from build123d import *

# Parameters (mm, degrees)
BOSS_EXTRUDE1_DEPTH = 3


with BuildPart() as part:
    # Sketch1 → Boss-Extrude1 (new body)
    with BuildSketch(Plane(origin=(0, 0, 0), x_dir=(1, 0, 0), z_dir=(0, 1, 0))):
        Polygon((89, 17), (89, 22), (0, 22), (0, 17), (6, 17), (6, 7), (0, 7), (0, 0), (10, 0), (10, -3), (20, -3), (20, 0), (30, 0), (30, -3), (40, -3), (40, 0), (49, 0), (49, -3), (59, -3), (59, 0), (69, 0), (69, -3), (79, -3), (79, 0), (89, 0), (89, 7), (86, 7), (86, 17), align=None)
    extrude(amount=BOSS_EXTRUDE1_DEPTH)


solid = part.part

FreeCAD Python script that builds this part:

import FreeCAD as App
import Part
import Sketcher

V = App.Vector


def add_polygon(sketch, points):
    """Adds a closed chain of lines whose ends are joined by coincident constraints."""
    first, n = sketch.GeometryCount, len(points)
    for a, b in zip(points, points[1:] + points[:1]):
        sketch.addGeometry(Part.LineSegment(App.Vector(*a, 0), App.Vector(*b, 0)), False)
    for i in range(n):
        sketch.addConstraint(Sketcher.Constraint("Coincident", first + i, 2, first + (i + 1) % n, 1))

doc = App.newDocument("Part")
params = doc.addObject("Spreadsheet::Sheet", "Params")
for row, (alias, value) in enumerate([
    ("sketch1_width", "89 mm"),
    ("sketch1_width2", "6 mm"),
    ("sketch1_width3", "10 mm"),
    ("sketch1_width4", "3 mm"),
    ("sketch1_height", "5 mm"),
    ("pad1_length", "3 mm"),
], start=1):
    params.set(f"A{row}", alias)
    params.set(f"B{row}", "=" + value)
    params.setAlias(f"B{row}", alias)

body = doc.addObject("PartDesign::Body", "Body")

# Sketch on XZ plane
sketch1 = body.newObject("Sketcher::SketchObject", "Sketch")
sketch1.AttachmentSupport = (doc.getObject("XZ_Plane"), [""])
sketch1.MapMode = "FlatFace"
add_polygon(sketch1, [(89, -17), (89, -22), (0, -22), (0, -17), (6, -17), (6, -7), (0, -7), (0, 0), (10, 0), (10, 3), (20, 3), (20, 0), (30, 0), (30, 3), (40, 3), (40, 0), (49, 0), (49, 3), (59, 3), (59, 0), (69, 0), (69, 3), (79, 3), (79, 0), (89, 0), (89, -7), (86, -7), (86, -17)])  # lines 0-27
sketch1.addConstraint([
    Sketcher.Constraint("Vertical", 0),
    Sketcher.Constraint("Horizontal", 1),
    Sketcher.Constraint("Vertical", 2),
    Sketcher.Constraint("Horizontal", 3),
    Sketcher.Constraint("Vertical", 4),
    Sketcher.Constraint("Horizontal", 5),
    Sketcher.Constraint("Vertical", 6),
    Sketcher.Constraint("Horizontal", 7),
    Sketcher.Constraint("Vertical", 8),
    Sketcher.Constraint("Horizontal", 9),
    Sketcher.Constraint("Vertical", 10),
    Sketcher.Constraint("Horizontal", 11),
    Sketcher.Constraint("Vertical", 12),
    Sketcher.Constraint("Horizontal", 13),
    Sketcher.Constraint("Vertical", 14),
    Sketcher.Constraint("Horizontal", 15),
    Sketcher.Constraint("Vertical", 16),
    Sketcher.Constraint("Horizontal", 17),
    Sketcher.Constraint("Vertical", 18),
    Sketcher.Constraint("Horizontal", 19),
    Sketcher.Constraint("Vertical", 20),
    Sketcher.Constraint("Horizontal", 21),
    Sketcher.Constraint("Vertical", 22),
    Sketcher.Constraint("Horizontal", 23),
    Sketcher.Constraint("Vertical", 24),
    Sketcher.Constraint("Horizontal", 25),
    Sketcher.Constraint("Vertical", 26),
    Sketcher.Constraint("Horizontal", 27),
    Sketcher.Constraint("Coincident", 6, 2, -1, 1),
    Sketcher.Constraint("PointOnObject", 1, 2, -2),
    Sketcher.Constraint("PointOnObject", 10, 2, -1),
    Sketcher.Constraint("PointOnObject", 14, 2, -1),
    Sketcher.Constraint("PointOnObject", 18, 2, -1),
    Sketcher.Constraint("PointOnObject", 22, 2, -1),
    Sketcher.Constraint("Horizontal", 9, 2, 12, 2),
    Sketcher.Constraint("Horizontal", 13, 2, 16, 2),
    Sketcher.Constraint("Horizontal", 17, 2, 20, 2),
    Sketcher.Constraint("Horizontal", 5, 2, 24, 2),
    Sketcher.Constraint("Horizontal", 3, 2, 26, 2),
    Sketcher.Constraint("Vertical", 0, 2, 23, 2),
    Sketcher.Constraint("Equal", 7, 9),
    Sketcher.Constraint("Equal", 9, 11),
    Sketcher.Constraint("Equal", 11, 13),
    Sketcher.Constraint("Equal", 13, 17),
    Sketcher.Constraint("Equal", 17, 19),
    Sketcher.Constraint("Equal", 19, 21),
    Sketcher.Constraint("Equal", 21, 23),
    Sketcher.Constraint("Equal", 23, 4),
    Sketcher.Constraint("Equal", 27, 8),
    Sketcher.Constraint("DistanceX", 1, 2, 1, 1, 89.0),
    Sketcher.Constraint("DistanceX", 3, 1, 3, 2, 6.0),
    Sketcher.Constraint("DistanceX", 7, 1, 7, 2, 10.0),
    Sketcher.Constraint("DistanceX", 25, 2, 25, 1, 3.0),
    Sketcher.Constraint("DistanceY", 0, 2, 0, 1, 5.0),
    Sketcher.Constraint("DistanceY", 6, 1, 6, 2, 7.0),
])
sketch1.setExpression("Constraints[77]", "Params.sketch1_width")
sketch1.setExpression("Constraints[78]", "Params.sketch1_width2")
sketch1.setExpression("Constraints[79]", "Params.sketch1_width3")
sketch1.setExpression("Constraints[80]", "Params.sketch1_width4")
sketch1.setExpression("Constraints[81]", "Params.sketch1_height")
pad1 = body.newObject("PartDesign::Pad", "Pad")
pad1.Profile = sketch1
pad1.setExpression("Length", "Params.pad1_length")
pad1.Reversed = True

doc.recompute()
